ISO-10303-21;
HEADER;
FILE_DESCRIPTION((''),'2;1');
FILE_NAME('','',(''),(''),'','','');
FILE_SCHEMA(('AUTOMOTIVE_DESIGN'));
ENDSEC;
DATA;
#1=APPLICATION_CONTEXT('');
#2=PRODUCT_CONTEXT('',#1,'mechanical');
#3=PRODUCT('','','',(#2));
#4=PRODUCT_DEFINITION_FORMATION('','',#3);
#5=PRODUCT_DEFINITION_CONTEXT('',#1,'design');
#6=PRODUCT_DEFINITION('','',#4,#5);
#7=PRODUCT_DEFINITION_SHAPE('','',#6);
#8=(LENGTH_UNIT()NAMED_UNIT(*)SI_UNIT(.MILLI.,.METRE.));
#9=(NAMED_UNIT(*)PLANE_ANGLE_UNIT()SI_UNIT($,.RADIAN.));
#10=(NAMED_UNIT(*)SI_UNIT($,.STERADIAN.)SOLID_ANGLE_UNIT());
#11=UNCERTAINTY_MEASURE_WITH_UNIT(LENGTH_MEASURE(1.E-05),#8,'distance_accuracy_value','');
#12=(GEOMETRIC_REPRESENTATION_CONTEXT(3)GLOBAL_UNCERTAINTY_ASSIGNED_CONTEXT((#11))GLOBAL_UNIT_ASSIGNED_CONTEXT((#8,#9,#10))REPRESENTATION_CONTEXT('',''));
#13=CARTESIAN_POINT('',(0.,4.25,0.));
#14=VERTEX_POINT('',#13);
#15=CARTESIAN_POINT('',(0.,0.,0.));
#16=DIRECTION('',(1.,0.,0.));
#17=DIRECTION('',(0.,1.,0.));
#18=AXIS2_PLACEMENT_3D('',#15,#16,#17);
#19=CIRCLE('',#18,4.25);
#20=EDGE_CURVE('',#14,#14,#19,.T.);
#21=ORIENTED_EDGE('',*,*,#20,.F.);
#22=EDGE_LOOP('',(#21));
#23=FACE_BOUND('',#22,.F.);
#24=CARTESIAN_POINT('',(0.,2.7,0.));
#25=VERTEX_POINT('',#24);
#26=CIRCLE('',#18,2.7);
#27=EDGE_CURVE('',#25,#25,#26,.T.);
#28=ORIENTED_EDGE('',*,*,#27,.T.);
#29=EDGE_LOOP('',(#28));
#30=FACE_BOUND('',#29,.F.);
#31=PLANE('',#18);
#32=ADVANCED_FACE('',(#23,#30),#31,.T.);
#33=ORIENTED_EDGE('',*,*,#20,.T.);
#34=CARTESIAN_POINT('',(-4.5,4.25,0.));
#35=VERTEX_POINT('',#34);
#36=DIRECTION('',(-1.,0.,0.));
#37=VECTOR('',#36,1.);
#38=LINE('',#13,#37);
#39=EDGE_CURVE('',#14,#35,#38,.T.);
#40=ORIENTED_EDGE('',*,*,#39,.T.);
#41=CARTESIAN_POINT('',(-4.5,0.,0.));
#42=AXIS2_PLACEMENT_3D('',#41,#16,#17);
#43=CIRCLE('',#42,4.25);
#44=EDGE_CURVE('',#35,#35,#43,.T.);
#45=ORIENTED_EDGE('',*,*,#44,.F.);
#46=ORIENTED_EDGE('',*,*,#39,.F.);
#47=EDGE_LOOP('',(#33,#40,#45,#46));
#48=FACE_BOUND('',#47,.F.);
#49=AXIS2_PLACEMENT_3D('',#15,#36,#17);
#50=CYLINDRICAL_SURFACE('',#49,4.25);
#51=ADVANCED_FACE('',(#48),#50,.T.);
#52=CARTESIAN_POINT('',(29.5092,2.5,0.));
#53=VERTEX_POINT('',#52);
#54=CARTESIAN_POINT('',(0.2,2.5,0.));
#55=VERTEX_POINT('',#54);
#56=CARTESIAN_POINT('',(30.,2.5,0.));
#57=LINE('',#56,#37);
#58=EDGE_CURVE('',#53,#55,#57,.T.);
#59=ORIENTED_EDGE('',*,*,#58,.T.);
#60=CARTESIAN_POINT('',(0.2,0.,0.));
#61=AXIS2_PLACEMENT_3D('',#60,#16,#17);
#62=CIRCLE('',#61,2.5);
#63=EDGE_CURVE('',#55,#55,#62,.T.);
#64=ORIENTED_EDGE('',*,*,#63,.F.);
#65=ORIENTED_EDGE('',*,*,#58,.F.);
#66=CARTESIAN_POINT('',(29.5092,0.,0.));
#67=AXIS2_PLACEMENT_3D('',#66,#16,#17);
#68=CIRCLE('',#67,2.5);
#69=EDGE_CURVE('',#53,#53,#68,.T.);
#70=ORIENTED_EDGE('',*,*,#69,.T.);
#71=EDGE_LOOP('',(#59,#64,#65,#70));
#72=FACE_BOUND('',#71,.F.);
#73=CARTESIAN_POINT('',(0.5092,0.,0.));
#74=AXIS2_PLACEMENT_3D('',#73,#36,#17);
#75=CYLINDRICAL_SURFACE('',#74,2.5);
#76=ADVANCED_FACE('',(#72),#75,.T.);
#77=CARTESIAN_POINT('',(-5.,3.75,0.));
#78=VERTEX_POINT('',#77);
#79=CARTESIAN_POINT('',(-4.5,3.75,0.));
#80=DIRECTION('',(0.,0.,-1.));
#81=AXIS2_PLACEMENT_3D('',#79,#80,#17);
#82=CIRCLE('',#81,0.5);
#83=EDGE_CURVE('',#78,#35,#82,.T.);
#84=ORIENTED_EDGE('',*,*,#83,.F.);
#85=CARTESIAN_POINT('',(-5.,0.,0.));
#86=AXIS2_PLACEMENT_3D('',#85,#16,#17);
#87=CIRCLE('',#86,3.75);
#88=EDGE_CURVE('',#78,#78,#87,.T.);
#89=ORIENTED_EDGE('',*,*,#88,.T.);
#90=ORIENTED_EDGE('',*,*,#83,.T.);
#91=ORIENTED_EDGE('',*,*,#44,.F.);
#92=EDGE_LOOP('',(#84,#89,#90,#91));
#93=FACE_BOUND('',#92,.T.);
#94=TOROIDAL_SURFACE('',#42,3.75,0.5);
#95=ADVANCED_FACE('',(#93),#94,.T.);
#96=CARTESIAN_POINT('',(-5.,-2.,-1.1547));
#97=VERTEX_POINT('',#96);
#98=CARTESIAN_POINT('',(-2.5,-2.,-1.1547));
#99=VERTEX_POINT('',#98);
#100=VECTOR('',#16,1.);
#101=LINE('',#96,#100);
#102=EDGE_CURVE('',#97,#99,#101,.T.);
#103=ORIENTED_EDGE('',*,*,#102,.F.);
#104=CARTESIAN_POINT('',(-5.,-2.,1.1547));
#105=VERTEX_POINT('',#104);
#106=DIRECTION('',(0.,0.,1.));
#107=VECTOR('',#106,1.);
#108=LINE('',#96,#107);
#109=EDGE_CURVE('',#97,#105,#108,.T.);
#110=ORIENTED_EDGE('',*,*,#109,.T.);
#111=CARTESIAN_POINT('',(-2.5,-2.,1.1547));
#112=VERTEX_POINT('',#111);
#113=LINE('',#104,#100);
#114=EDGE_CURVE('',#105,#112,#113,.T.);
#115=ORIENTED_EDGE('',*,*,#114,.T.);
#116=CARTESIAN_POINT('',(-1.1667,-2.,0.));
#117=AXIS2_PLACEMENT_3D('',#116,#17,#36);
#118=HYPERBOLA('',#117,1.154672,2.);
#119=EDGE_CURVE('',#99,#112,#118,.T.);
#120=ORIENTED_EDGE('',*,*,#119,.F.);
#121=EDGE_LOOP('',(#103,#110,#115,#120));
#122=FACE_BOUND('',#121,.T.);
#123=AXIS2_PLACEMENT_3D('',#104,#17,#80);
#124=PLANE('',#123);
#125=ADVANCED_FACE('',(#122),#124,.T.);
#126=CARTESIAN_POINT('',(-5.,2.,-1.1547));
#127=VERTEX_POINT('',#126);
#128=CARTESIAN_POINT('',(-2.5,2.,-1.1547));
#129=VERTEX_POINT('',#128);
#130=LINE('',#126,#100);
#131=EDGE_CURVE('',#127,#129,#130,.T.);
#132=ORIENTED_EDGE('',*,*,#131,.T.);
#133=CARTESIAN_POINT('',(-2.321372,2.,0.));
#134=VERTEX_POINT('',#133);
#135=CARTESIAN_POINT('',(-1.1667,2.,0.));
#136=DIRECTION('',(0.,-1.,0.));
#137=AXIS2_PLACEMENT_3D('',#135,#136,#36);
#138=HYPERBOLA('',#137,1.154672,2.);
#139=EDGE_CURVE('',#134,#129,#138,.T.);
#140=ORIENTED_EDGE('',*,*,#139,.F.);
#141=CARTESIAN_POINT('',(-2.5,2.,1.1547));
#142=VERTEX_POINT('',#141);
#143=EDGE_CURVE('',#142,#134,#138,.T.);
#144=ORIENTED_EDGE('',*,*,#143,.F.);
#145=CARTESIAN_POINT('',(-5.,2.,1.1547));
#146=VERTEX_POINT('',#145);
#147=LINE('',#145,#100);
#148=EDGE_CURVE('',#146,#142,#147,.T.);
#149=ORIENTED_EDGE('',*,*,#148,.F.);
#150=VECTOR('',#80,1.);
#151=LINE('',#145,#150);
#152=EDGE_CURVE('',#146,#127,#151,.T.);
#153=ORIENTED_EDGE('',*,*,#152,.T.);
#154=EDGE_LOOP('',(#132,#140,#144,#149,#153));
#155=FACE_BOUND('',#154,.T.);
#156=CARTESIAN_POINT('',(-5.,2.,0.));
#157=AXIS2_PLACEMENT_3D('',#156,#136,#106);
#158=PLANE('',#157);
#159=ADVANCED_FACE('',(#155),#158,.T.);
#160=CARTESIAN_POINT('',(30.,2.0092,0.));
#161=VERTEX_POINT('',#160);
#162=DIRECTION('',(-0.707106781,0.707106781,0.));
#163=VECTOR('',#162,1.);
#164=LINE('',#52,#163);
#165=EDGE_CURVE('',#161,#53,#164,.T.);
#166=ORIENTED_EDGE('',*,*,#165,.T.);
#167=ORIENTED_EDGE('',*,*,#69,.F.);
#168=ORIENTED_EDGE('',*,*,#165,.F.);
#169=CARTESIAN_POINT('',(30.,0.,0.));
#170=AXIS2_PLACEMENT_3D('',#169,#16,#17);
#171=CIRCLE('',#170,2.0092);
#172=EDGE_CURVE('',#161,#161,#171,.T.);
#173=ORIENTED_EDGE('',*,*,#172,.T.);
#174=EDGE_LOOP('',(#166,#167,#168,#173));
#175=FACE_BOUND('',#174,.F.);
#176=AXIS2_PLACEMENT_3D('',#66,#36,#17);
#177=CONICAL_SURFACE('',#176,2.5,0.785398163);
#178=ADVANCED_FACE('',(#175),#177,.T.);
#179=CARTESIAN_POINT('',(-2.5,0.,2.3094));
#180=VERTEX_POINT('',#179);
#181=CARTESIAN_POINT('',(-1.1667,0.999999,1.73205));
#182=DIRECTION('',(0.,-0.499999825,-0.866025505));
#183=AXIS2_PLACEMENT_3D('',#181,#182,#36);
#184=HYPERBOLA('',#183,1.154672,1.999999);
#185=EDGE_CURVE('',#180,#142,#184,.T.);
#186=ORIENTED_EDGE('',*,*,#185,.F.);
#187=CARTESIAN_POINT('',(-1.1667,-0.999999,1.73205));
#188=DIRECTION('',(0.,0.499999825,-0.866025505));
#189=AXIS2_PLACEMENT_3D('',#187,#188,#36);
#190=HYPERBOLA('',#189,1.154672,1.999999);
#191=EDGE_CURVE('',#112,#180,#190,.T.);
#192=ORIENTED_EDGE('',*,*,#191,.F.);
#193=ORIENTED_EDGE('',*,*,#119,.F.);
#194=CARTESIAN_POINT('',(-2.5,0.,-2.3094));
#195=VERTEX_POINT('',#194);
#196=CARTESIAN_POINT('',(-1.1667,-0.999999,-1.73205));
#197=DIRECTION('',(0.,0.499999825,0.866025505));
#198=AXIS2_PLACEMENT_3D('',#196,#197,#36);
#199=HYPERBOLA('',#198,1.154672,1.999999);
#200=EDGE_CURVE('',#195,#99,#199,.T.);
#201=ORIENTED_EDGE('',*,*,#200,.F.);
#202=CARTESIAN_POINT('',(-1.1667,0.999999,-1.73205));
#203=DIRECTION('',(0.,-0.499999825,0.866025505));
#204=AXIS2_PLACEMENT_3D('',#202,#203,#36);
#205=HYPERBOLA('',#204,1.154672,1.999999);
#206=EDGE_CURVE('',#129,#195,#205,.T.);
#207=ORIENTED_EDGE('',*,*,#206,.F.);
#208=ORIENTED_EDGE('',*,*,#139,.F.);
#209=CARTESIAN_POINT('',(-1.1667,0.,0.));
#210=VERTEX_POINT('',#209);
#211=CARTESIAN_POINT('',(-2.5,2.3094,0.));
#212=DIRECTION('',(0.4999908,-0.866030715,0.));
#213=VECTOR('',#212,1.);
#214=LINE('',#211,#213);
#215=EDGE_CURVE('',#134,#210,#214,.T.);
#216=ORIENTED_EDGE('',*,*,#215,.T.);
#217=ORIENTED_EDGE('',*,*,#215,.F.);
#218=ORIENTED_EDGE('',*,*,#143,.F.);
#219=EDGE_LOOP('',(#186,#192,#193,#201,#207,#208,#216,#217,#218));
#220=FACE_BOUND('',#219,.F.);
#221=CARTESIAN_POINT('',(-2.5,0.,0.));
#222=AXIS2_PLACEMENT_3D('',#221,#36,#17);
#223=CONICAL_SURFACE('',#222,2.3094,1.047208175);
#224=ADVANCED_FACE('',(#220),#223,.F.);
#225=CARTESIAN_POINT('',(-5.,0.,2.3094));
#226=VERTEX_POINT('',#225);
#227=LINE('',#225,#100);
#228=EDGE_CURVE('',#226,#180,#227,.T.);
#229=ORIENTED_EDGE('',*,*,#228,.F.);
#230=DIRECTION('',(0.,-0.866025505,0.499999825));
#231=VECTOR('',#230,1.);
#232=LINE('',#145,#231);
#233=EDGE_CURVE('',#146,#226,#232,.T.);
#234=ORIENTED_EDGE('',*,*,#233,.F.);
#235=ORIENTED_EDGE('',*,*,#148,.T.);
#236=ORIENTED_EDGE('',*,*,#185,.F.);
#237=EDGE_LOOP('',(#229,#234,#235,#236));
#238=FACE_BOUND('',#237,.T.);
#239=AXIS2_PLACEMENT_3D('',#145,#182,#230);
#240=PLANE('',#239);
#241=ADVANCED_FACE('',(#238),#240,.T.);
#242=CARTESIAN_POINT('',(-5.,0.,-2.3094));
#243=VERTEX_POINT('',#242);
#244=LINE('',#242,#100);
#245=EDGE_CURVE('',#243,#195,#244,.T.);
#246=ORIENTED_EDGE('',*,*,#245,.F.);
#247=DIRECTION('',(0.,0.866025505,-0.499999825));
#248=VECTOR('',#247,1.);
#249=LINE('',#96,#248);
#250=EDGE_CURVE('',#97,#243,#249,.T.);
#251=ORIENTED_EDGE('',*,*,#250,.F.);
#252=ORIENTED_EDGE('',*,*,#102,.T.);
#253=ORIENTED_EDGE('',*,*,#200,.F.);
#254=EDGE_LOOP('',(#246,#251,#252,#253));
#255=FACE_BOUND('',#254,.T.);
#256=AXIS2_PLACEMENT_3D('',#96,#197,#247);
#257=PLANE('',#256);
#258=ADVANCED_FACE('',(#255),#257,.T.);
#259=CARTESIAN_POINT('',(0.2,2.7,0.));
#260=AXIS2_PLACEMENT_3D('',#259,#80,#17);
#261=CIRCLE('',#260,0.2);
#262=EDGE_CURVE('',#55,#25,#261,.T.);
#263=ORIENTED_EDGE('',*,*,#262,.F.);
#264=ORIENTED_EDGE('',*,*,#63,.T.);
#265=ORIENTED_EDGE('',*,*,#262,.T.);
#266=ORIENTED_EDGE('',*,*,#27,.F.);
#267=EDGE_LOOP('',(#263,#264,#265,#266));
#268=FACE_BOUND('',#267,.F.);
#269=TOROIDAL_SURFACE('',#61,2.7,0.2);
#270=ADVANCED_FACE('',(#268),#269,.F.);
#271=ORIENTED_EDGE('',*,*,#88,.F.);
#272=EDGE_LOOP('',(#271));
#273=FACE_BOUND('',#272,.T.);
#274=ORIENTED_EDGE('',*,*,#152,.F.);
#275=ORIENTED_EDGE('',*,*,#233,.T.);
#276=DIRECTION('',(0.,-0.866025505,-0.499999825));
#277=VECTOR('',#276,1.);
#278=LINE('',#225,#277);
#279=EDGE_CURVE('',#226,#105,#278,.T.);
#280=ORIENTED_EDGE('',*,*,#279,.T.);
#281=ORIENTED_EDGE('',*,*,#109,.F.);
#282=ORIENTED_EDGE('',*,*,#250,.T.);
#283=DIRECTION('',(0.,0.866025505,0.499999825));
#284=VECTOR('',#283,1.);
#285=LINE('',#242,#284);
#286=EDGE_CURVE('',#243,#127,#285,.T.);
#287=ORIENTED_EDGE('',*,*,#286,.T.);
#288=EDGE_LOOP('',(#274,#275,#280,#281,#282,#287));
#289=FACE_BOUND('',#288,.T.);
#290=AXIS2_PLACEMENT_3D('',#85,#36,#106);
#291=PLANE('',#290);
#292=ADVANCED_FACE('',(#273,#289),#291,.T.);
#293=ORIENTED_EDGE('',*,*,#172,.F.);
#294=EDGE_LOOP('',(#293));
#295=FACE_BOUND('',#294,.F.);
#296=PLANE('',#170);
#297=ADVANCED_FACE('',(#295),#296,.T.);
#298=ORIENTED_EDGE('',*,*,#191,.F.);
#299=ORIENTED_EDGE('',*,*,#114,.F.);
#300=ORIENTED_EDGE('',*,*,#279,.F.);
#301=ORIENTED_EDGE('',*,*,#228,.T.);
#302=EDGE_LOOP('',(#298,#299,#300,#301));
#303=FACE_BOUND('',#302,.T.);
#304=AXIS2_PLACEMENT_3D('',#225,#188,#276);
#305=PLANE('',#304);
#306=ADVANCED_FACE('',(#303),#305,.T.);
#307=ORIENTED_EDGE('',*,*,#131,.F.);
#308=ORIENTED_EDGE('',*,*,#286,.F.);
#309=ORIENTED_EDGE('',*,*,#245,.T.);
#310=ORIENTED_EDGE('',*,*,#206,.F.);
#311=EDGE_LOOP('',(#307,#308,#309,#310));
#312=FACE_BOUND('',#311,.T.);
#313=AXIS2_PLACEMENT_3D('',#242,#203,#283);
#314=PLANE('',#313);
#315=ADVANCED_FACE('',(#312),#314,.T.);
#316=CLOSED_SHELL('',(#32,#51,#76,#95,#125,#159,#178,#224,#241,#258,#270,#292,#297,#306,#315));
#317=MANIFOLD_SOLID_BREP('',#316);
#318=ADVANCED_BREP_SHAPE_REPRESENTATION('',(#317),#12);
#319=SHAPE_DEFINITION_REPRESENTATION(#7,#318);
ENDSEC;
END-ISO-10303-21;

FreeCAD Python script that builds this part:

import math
import FreeCAD as App
import Part
import Sketcher

V = App.Vector
Q = App.Units.Quantity


def edges_at(feature, points):
    """Names of the edges that pass closest to the given points."""
    edges = feature.Shape.Edges
    near = lambda p: min(range(len(edges)), key=lambda i: edges[i].distToShape(Part.Vertex(*p))[0])
    return sorted({f"Edge{near(p) + 1}" for p in points})


def add_polygon(sketch, points):
    """Adds a closed chain of lines whose ends are joined by coincident constraints."""
    first, n = sketch.GeometryCount, len(points)
    for a, b in zip(points, points[1:] + points[:1]):
        sketch.addGeometry(Part.LineSegment(App.Vector(*a, 0), App.Vector(*b, 0)), False)
    for i in range(n):
        sketch.addConstraint(Sketcher.Constraint("Coincident", first + i, 2, first + (i + 1) % n, 1))

doc = App.newDocument("Part")
params = doc.addObject("Spreadsheet::Sheet", "Params")
for row, (alias, value) in enumerate([
    ("sketch1_width", "30 mm"),
    ("sketch1_width2", "5 mm"),
    ("sketch1_width3", "2.5 mm"),
    ("sketch1_height", "1.75 mm"),
    ("revolution_angle", "360 deg"),
    ("pad1_length", "2.6786 mm"),
    ("fillet_radius", "0.5 mm"),
    ("chamfer_size", "0.4908 mm"),
    ("chamfer_size2", "0.4908 mm"),
    ("fillet2_radius", "0.2 mm"),
], start=1):
    params.set(f"A{row}", alias)
    params.set(f"B{row}", "=" + value)
    params.setAlias(f"B{row}", alias)

body = doc.addObject("PartDesign::Body", "Body")

# Sketch on XY plane
sketch1 = doc.addObject("Sketcher::SketchObject", "Sketch")
body.addObject(sketch1)
sketch1.AttachmentSupport = (doc.XY_Plane, [""])
sketch1.MapMode = "FlatFace"
add_polygon(sketch1, [(-2.5, 2.3), (-1.2, 0), (30, 0), (30, 2.5), (0, 2.5), (0, 4.2), (-5, 4.2), (-5, 2.3)])  # lines 0-7
sketch1.addConstraint(Sketcher.Constraint("Horizontal", 1))
sketch1.addConstraint(Sketcher.Constraint("Vertical", 2))
sketch1.addConstraint(Sketcher.Constraint("Horizontal", 3))
sketch1.addConstraint(Sketcher.Constraint("Vertical", 4))
sketch1.addConstraint(Sketcher.Constraint("Horizontal", 5))
sketch1.addConstraint(Sketcher.Constraint("Vertical", 6))
sketch1.addConstraint(Sketcher.Constraint("Horizontal", 7))
sketch1.addConstraint(Sketcher.Constraint("PointOnObject", 0, 2, -1))
sketch1.addConstraint(Sketcher.Constraint("PointOnObject", 3, 2, -2))
sketch1.addConstraint(Sketcher.Constraint("Equal", 7, 2))
sketch1.addConstraint(Sketcher.Constraint("DistanceX", 3, 2, 3, 1, Q("30 mm")))
sketch1.addConstraint(Sketcher.Constraint("DistanceX", 5, 2, 5, 1, Q("5 mm")))
sketch1.addConstraint(Sketcher.Constraint("DistanceX", 7, 1, 7, 2, Q("2.5 mm")))
sketch1.addConstraint(Sketcher.Constraint("Angle", 0, Q("-60.0006 deg")))
sketch1.addConstraint(Sketcher.Constraint("DistanceY", 4, 1, 4, 2, Q("1.75 mm")))
sketch1.addConstraint(Sketcher.Constraint("DistanceX", 1, 1, 1, 2, Q("31.1667 mm")))
sketch1.setExpression("Constraints[18]", "Params.sketch1_width")
sketch1.setExpression("Constraints[19]", "Params.sketch1_width2")
sketch1.setExpression("Constraints[20]", "Params.sketch1_width3")
sketch1.setExpression("Constraints[22]", "Params.sketch1_height")
revolution = doc.addObject("PartDesign::Revolution", "Revolution")
body.addObject(revolution)
revolution.Profile = sketch1
revolution.ReferenceAxis = (sketch1, ["H_Axis"])
revolution.setExpression("Angle", "Params.revolution_angle")

# Sketch on YZ plane
sketch2 = doc.addObject("Sketcher::SketchObject", "Sketch001")
body.addObject(sketch2)
sketch2.AttachmentSupport = (doc.YZ_Plane, [""])
sketch2.MapMode = "FlatFace"
sketch2.AttachmentOffset = App.Placement(V(0, 0, -5), App.Rotation())
sketch2.addGeometry(Part.LineSegment(V(2, 1.2, 0), V(0, 2.3, 0)), False)
sketch2.addGeometry(Part.ArcOfCircle(Part.Circle(V(0, 0, 0), V(0, 0, 1), 2.3), math.radians(30), math.radians(90)), False)
sketch2.addGeometry(Part.ArcOfCircle(Part.Circle(V(0, 0, 0), V(0, 0, 1), 2.3), math.radians(90), math.radians(150)), False)
sketch2.addGeometry(Part.LineSegment(V(0, 2.3, 0), V(-2, 1.2, 0)), False)
sketch2.addGeometry(Part.ArcOfCircle(Part.Circle(V(0, 0, 0), V(0, 0, 1), 2.3), math.radians(-30), math.radians(30)), False)
sketch2.addGeometry(Part.LineSegment(V(2, -1.2, 0), V(2, 1.2, 0)), False)
sketch2.addGeometry(Part.LineSegment(V(-2, 1.2, 0), V(-2, -1.2, 0)), False)
sketch2.addGeometry(Part.ArcOfCircle(Part.Circle(V(0, 0, 0), V(0, 0, 1), 2.3), math.radians(150), math.radians(210)), False)
sketch2.addGeometry(Part.LineSegment(V(-2, -1.2, 0), V(0, -2.3, 0)), False)
sketch2.addGeometry(Part.ArcOfCircle(Part.Circle(V(0, 0, 0), V(0, 0, 1), 2.3), math.radians(-150), math.radians(-90)), False)
sketch2.addGeometry(Part.ArcOfCircle(Part.Circle(V(0, 0, 0), V(0, 0, 1), 2.3), math.radians(-90), math.radians(-30)), False)
sketch2.addGeometry(Part.LineSegment(V(0, -2.3, 0), V(2, -1.2, 0)), False)
sketch2.addConstraint(Sketcher.Constraint("Coincident", 0, 1, 1, 1))
sketch2.addConstraint(Sketcher.Constraint("Coincident", 1, 2, 0, 2))
sketch2.addConstraint(Sketcher.Constraint("Coincident", 2, 1, 3, 1))
sketch2.addConstraint(Sketcher.Constraint("Coincident", 3, 2, 2, 2))
sketch2.addConstraint(Sketcher.Constraint("Coincident", 4, 1, 5, 1))
sketch2.addConstraint(Sketcher.Constraint("Coincident", 5, 2, 4, 2))
sketch2.addConstraint(Sketcher.Constraint("Coincident", 6, 1, 7, 1))
sketch2.addConstraint(Sketcher.Constraint("Coincident", 7, 2, 6, 2))
sketch2.addConstraint(Sketcher.Constraint("Coincident", 8, 1, 9, 1))
sketch2.addConstraint(Sketcher.Constraint("Coincident", 9, 2, 8, 2))
sketch2.addConstraint(Sketcher.Constraint("Coincident", 10, 1, 11, 1))
sketch2.addConstraint(Sketcher.Constraint("Coincident", 11, 2, 10, 2))
sketch2.addConstraint(Sketcher.Constraint("Vertical", 5))
sketch2.addConstraint(Sketcher.Constraint("Vertical", 6))
sketch2.addConstraint(Sketcher.Constraint("Coincident", 1, 3, -1, 1))
sketch2.addConstraint(Sketcher.Constraint("Coincident", 2, 3, -1, 1))
sketch2.addConstraint(Sketcher.Constraint("Coincident", 4, 3, -1, 1))
sketch2.addConstraint(Sketcher.Constraint("Coincident", 7, 3, -1, 1))
sketch2.addConstraint(Sketcher.Constraint("Coincident", 9, 3, -1, 1))
sketch2.addConstraint(Sketcher.Constraint("Coincident", 10, 3, -1, 1))
sketch2.addConstraint(Sketcher.Constraint("Coincident", 2, 1, 1, 2))
sketch2.addConstraint(Sketcher.Constraint("Coincident", 5, 2, 0, 1))
sketch2.addConstraint(Sketcher.Constraint("Coincident", 6, 1, 3, 2))
sketch2.addConstraint(Sketcher.Constraint("Coincident", 8, 1, 7, 2))
sketch2.addConstraint(Sketcher.Constraint("Coincident", 10, 1, 9, 2))
sketch2.addConstraint(Sketcher.Constraint("PointOnObject", 1, 2, -2))
sketch2.addConstraint(Sketcher.Constraint("PointOnObject", 9, 2, -2))
sketch2.addConstraint(Sketcher.Constraint("Parallel", 0, 8))
sketch2.addConstraint(Sketcher.Constraint("Parallel", 3, 11))
sketch2.addConstraint(Sketcher.Constraint("Angle", 0, Q("150 deg")))
sketch2.addConstraint(Sketcher.Constraint("DistanceX", -1, 1, 0, 1, Q("2 mm")))
pad1 = doc.addObject("PartDesign::Pad", "Pad")
body.addObject(pad1)
pad1.Profile = sketch2
pad1.setExpression("Length", "Params.pad1_length")
doc.recompute()

fillet = doc.addObject("PartDesign::Fillet", "Fillet")
body.addObject(fillet)
fillet.Base = (pad1, edges_at(pad1, [(-5, -4.25, 0)]))
fillet.setExpression("Radius", "Params.fillet_radius")
doc.recompute()

chamfer = doc.addObject("PartDesign::Chamfer", "Chamfer")
body.addObject(chamfer)
chamfer.Base = (fillet, edges_at(fillet, [(30, -2.5, 0)]))
chamfer.ChamferType = "Two distances"
chamfer.setExpression("Size", "Params.chamfer_size")
chamfer.setExpression("Size2", "Params.chamfer_size2")
doc.recompute()

fillet2 = doc.addObject("PartDesign::Fillet", "Fillet001")
body.addObject(fillet2)
fillet2.Base = (chamfer, edges_at(chamfer, [(0, -2.5, 0)]))
fillet2.setExpression("Radius", "Params.fillet2_radius")

doc.recompute()
